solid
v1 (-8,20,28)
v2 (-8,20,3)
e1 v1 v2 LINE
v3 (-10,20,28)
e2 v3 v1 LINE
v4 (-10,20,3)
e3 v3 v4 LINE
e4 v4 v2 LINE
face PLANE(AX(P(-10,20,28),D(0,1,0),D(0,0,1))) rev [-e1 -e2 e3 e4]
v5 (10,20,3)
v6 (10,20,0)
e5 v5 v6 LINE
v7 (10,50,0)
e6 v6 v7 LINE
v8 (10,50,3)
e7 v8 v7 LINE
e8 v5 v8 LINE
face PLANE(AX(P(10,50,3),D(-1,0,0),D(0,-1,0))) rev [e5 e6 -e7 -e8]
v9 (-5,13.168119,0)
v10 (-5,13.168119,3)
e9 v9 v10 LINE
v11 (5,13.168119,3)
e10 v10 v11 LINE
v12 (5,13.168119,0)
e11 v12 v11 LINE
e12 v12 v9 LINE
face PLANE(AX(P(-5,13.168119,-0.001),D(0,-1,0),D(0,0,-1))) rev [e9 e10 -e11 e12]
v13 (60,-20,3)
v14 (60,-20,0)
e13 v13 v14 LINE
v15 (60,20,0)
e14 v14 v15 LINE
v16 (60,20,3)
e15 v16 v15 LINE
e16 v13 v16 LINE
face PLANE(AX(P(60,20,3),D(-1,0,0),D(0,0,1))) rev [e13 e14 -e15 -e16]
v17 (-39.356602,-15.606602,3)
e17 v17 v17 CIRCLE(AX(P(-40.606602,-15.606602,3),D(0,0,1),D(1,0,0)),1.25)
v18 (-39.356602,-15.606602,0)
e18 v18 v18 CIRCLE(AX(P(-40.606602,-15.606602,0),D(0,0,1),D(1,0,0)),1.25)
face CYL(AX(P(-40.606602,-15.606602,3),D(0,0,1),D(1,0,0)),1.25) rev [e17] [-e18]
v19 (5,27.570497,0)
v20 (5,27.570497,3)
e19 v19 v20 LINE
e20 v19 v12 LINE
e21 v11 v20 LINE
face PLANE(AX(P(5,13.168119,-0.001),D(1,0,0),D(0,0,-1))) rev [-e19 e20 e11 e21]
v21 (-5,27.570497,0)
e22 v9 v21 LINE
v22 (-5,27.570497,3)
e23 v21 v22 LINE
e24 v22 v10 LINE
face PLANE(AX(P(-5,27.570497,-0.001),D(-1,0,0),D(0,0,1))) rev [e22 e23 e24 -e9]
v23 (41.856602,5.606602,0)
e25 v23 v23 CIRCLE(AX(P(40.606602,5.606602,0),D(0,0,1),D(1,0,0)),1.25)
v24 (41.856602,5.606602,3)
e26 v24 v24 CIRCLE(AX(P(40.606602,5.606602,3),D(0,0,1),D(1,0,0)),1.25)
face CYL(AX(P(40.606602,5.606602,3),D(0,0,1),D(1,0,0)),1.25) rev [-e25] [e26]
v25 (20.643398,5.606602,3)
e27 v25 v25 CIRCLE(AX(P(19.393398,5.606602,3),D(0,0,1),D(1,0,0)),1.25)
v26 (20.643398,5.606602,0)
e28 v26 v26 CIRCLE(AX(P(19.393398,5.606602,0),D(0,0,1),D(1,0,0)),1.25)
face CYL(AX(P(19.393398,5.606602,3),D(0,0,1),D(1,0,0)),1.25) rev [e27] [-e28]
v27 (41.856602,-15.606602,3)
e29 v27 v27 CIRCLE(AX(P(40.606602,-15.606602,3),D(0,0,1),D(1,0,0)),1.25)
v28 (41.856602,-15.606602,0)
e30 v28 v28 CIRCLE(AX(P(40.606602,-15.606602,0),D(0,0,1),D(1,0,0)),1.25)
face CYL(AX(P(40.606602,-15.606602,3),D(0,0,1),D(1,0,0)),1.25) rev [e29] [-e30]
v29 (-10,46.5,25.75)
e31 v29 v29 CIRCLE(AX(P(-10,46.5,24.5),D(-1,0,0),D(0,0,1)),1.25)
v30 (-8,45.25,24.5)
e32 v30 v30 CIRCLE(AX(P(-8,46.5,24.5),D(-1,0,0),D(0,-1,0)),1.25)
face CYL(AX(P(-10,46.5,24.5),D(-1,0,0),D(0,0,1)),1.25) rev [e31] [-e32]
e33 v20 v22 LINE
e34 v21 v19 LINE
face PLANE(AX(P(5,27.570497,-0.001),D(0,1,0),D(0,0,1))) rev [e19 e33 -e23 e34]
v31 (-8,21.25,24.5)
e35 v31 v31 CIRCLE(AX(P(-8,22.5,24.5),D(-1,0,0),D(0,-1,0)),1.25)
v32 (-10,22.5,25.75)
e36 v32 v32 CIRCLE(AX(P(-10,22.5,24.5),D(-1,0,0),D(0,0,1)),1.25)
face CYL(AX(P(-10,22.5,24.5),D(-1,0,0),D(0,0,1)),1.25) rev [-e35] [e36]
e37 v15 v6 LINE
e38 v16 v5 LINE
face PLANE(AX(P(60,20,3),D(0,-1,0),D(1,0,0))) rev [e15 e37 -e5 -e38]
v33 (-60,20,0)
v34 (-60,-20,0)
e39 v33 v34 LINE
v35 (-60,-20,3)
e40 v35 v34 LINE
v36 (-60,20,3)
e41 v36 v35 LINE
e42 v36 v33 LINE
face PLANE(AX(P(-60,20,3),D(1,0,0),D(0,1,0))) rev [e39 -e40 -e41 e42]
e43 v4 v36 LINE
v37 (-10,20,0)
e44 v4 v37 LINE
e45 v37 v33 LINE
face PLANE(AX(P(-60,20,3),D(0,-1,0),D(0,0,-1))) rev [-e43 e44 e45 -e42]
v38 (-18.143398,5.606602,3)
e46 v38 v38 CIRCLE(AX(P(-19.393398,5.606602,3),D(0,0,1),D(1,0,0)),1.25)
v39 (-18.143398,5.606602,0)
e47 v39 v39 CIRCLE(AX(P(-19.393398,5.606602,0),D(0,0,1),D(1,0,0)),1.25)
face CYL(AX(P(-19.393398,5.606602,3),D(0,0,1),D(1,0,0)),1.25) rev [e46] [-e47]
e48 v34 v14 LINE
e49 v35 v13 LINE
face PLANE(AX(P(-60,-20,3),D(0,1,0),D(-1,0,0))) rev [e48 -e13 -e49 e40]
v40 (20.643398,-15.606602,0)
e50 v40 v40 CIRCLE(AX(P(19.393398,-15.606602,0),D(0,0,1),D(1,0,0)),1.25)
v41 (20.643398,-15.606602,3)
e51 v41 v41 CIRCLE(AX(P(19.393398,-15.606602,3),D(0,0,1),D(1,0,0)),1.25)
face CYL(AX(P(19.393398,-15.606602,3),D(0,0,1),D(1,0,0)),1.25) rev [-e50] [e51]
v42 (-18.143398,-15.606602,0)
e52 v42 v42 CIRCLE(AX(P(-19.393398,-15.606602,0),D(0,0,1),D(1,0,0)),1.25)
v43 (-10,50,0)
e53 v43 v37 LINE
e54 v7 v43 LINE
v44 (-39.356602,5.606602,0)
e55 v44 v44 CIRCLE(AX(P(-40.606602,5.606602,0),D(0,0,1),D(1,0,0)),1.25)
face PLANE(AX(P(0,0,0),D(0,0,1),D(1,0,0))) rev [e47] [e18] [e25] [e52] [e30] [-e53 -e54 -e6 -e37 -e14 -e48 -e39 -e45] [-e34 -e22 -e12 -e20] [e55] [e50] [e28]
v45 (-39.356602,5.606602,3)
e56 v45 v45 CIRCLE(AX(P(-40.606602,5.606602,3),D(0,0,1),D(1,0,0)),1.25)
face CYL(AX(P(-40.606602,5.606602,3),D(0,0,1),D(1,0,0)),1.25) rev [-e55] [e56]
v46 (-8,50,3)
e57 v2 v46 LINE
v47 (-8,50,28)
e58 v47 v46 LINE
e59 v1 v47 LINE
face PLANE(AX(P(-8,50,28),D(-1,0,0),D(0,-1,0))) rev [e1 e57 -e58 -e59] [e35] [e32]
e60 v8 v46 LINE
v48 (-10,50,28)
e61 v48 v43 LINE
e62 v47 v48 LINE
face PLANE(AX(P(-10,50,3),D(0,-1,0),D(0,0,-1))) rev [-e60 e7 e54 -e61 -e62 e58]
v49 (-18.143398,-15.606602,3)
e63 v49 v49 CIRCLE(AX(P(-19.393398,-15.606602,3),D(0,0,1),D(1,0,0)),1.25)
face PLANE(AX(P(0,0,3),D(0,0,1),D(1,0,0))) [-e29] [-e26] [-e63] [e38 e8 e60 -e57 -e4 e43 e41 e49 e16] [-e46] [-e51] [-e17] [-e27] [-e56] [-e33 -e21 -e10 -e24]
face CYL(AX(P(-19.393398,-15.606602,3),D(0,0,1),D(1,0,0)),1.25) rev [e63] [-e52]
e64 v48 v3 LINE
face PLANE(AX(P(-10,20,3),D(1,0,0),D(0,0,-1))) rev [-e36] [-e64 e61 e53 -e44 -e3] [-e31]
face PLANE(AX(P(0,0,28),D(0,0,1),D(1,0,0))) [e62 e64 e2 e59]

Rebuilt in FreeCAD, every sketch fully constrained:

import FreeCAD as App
import Part
import Sketcher

V = App.Vector
Q = App.Units.Quantity

doc = App.newDocument("Part")
params = doc.addObject("Spreadsheet::Sheet", "Params")
for row, (alias, value) in enumerate([
    ("sketch1_width", "120 mm"),
    ("sketch1_width2", "50 mm"),
    ("sketch1_height", "40 mm"),
    ("sketch1_height2", "30 mm"),
    ("pad1_length", "3 mm"),
    ("sketch2_width", "2 mm"),
    ("sketch2_height", "30 mm"),
    ("pad2_length", "25 mm"),
    ("sketch3_width", "10 mm"),
    ("sketch4_diameter", "2.5 mm"),
    ("hole_diameter", "2.5 mm"),
    ("sketch5_diameter", "2.5 mm"),
    ("hole2_diameter", "2.5 mm"),
], start=1):
    params.set(f"A{row}", alias)
    params.set(f"B{row}", "=" + value)
    params.setAlias(f"B{row}", alias)

body = doc.addObject("PartDesign::Body", "Body")

sketch1 = doc.addObject("Sketcher::SketchObject", "Sketch")
body.addObject(sketch1)
sketch1.AttachmentSupport = (doc.XY_Plane, [""])
sketch1.MapMode = "FlatFace"
sketch1.addGeometry([
    Part.LineSegment(V(-60, 20, 0), V(-60, -20, 0)),
    Part.LineSegment(V(-60, -20, 0), V(60, -20, 0)),
    Part.LineSegment(V(60, -20, 0), V(60, 20, 0)),
    Part.LineSegment(V(60, 20, 0), V(10, 20, 0)),
    Part.LineSegment(V(10, 20, 0), V(10, 50, 0)),
    Part.LineSegment(V(10, 50, 0), V(-10, 50, 0)),
    Part.LineSegment(V(-10, 50, 0), V(-10, 20, 0)),
    Part.LineSegment(V(-10, 20, 0), V(-60, 20, 0)),
], False)
sketch1.addConstraint([
    Sketcher.Constraint("Coincident", 0, 2, 1, 1),
    Sketcher.Constraint("Coincident", 1, 2, 2, 1),
    Sketcher.Constraint("Coincident", 2, 2, 3, 1),
    Sketcher.Constraint("Coincident", 3, 2, 4, 1),
    Sketcher.Constraint("Coincident", 4, 2, 5, 1),
    Sketcher.Constraint("Coincident", 5, 2, 6, 1),
    Sketcher.Constraint("Coincident", 6, 2, 7, 1),
    Sketcher.Constraint("Coincident", 7, 2, 0, 1),
    Sketcher.Constraint("Vertical", 0),
    Sketcher.Constraint("Horizontal", 1),
    Sketcher.Constraint("Vertical", 2),
    Sketcher.Constraint("Horizontal", 3),
    Sketcher.Constraint("Vertical", 4),
    Sketcher.Constraint("Horizontal", 5),
    Sketcher.Constraint("Vertical", 6),
    Sketcher.Constraint("Horizontal", 7),
    Sketcher.Constraint("Symmetric", 0, 2, 2, 2, -1, 1),
    Sketcher.Constraint("Symmetric", 3, 2, 6, 2, -2),
    Sketcher.Constraint("DistanceX", 1, 1, 1, 2, Q("120 mm")),
    Sketcher.Constraint("DistanceX", 3, 2, 3, 1, Q("50 mm")),
    Sketcher.Constraint("DistanceY", 0, 2, 0, 1, Q("40 mm")),
    Sketcher.Constraint("DistanceY", 4, 1, 4, 2, Q("30 mm")),
])
sketch1.setExpression("Constraints[18]", "Params.sketch1_width")
sketch1.setExpression("Constraints[19]", "Params.sketch1_width2")
sketch1.setExpression("Constraints[20]", "Params.sketch1_height")
sketch1.setExpression("Constraints[21]", "Params.sketch1_height2")
pad1 = doc.addObject("PartDesign::Pad", "Pad")
body.addObject(pad1)
pad1.Profile = sketch1
pad1.setExpression("Length", "Params.pad1_length")

sketch2 = doc.addObject("Sketcher::SketchObject", "Sketch001")
body.addObject(sketch2)
sketch2.AttachmentSupport = (doc.XY_Plane, [""])
sketch2.MapMode = "FlatFace"
sketch2.AttachmentOffset = App.Placement(V(0, 0, 3), App.Rotation())
sketch2.addGeometry([
    Part.LineSegment(V(-10, 50, 0), V(-10, 20, 0)),
    Part.LineSegment(V(-10, 20, 0), V(-8, 20, 0)),
    Part.LineSegment(V(-8, 20, 0), V(-8, 50, 0)),
    Part.LineSegment(V(-8, 50, 0), V(-10, 50, 0)),
], False)
sketch2.addConstraint([
    Sketcher.Constraint("Coincident", 0, 2, 1, 1),
    Sketcher.Constraint("Coincident", 1, 2, 2, 1),
    Sketcher.Constraint("Coincident", 2, 2, 3, 1),
    Sketcher.Constraint("Coincident", 3, 2, 0, 1),
    Sketcher.Constraint("Vertical", 0),
    Sketcher.Constraint("Horizontal", 1),
    Sketcher.Constraint("Vertical", 2),
    Sketcher.Constraint("Horizontal", 3),
    Sketcher.Constraint("DistanceX", 1, 1, 1, 2, Q("2 mm")),
    Sketcher.Constraint("DistanceY", 0, 2, 0, 1, Q("30 mm")),
    Sketcher.Constraint("DistanceX", 0, 2, -1, 1, Q("10 mm")),
    Sketcher.Constraint("DistanceY", -1, 1, 0, 2, Q("20 mm")),
])
sketch2.setExpression("Constraints[8]", "Params.sketch2_width")
sketch2.setExpression("Constraints[9]", "Params.sketch2_height")
pad2 = doc.addObject("PartDesign::Pad", "Pad001")
body.addObject(pad2)
pad2.Profile = sketch2
pad2.setExpression("Length", "Params.pad2_length")

sketch3 = doc.addObject("Sketcher::SketchObject", "Sketch002")
body.addObject(sketch3)
sketch3.AttachmentSupport = (doc.XY_Plane, [""])
sketch3.MapMode = "FlatFace"
sketch3.AttachmentOffset = App.Placement(V(0, 0, 3), App.Rotation())
sketch3.addGeometry([
    Part.LineSegment(V(-5, 28, 0), V(-5, 13, 0)),
    Part.LineSegment(V(-5, 13, 0), V(5, 13, 0)),
    Part.LineSegment(V(5, 13, 0), V(5, 28, 0)),
    Part.LineSegment(V(5, 28, 0), V(-5, 28, 0)),
], False)
sketch3.addConstraint([
    Sketcher.Constraint("Coincident", 0, 2, 1, 1),
    Sketcher.Constraint("Coincident", 1, 2, 2, 1),
    Sketcher.Constraint("Coincident", 2, 2, 3, 1),
    Sketcher.Constraint("Coincident", 3, 2, 0, 1),
    Sketcher.Constraint("Vertical", 0),
    Sketcher.Constraint("Horizontal", 1),
    Sketcher.Constraint("Vertical", 2),
    Sketcher.Constraint("Horizontal", 3),
    Sketcher.Constraint("DistanceX", 1, 1, 1, 2, Q("10 mm")),
    Sketcher.Constraint("DistanceX", 0, 2, -1, 1, Q("5 mm")),
    Sketcher.Constraint("DistanceY", 0, 2, 0, 1, Q("14.402378 mm")),
    Sketcher.Constraint("DistanceY", -1, 1, 0, 2, Q("13.168119 mm")),
])
sketch3.setExpression("Constraints[8]", "Params.sketch3_width")
pocket1 = doc.addObject("PartDesign::Pocket", "Pocket")
body.addObject(pocket1)
pocket1.Profile = sketch3
pocket1.Type = "UpToFirst"

sketch4 = doc.addObject("Sketcher::SketchObject", "Sketch003")
body.addObject(sketch4)
sketch4.AttachmentSupport = (doc.YZ_Plane, [""])
sketch4.MapMode = "FlatFace"
sketch4.AttachmentOffset = App.Placement(V(0, 0, -10), App.Rotation())
sketch4.addGeometry([
    Part.Circle(V(46.5, 24.5, 0), V(0, 0, 1), 1.2),
    Part.Circle(V(22.5, 24.5, 0), V(0, 0, 1), 1.2),
], False)
sketch4.addConstraint([
    Sketcher.Constraint("Equal", 0, 1),
    Sketcher.Constraint("Horizontal", 0, 3, 1, 3),
    Sketcher.Constraint("Diameter", 0, Q("2.5 mm")),
    Sketcher.Constraint("DistanceX", 1, 3, 0, 3, Q("24 mm")),
    Sketcher.Constraint("DistanceX", -1, 1, 0, 3, Q("46.5 mm")),
    Sketcher.Constraint("DistanceY", -1, 1, 0, 3, Q("24.5 mm")),
])
sketch4.setExpression("Constraints[2]", "Params.sketch4_diameter")
doc.recompute()
hole = doc.addObject("PartDesign::Hole", "Hole")
body.addObject(hole)
hole.Profile = sketch4
hole.ThreadType = "None"
hole.setExpression("Diameter", "Params.hole_diameter")
hole.DepthType = "ThroughAll"
hole.Reversed = True

sketch5 = doc.addObject("Sketcher::SketchObject", "Sketch004")
body.addObject(sketch5)
sketch5.AttachmentSupport = (doc.XY_Plane, [""])
sketch5.MapMode = "FlatFace"
sketch5.AttachmentOffset = App.Placement(V(0, 0, 3), App.Rotation())
sketch5.addGeometry([
    Part.Circle(V(-40.6, 5.6, 0), V(0, 0, 1), 1.2),
    Part.Circle(V(-19.4, 5.6, 0), V(0, 0, 1), 1.2),
    Part.Circle(V(-19.4, -15.6, 0), V(0, 0, 1), 1.2),
    Part.Circle(V(-40.6, -15.6, 0), V(0, 0, 1), 1.2),
    Part.Circle(V(19.4, 5.6, 0), V(0, 0, 1), 1.2),
    Part.Circle(V(40.6, 5.6, 0), V(0, 0, 1), 1.2),
    Part.Circle(V(19.4, -15.6, 0), V(0, 0, 1), 1.2),
    Part.Circle(V(40.6, -15.6, 0), V(0, 0, 1), 1.2),
], False)
sketch5.addConstraint([
    Sketcher.Constraint("Equal", 0, 1),
    Sketcher.Constraint("Equal", 1, 2),
    Sketcher.Constraint("Equal", 2, 3),
    Sketcher.Constraint("Equal", 3, 4),
    Sketcher.Constraint("Equal", 4, 5),
    Sketcher.Constraint("Equal", 5, 6),
    Sketcher.Constraint("Equal", 6, 7),
    Sketcher.Constraint("Symmetric", 1, 3, 4, 3, -2),
    Sketcher.Constraint("Symmetric", 0, 3, 5, 3, -2),
    Sketcher.Constraint("Symmetric", 2, 3, 6, 3, -2),
    Sketcher.Constraint("Symmetric", 3, 3, 7, 3, -2),
    Sketcher.Constraint("Horizontal", 0, 3, 1, 3),
    Sketcher.Constraint("Horizontal", 2, 3, 3, 3),
    Sketcher.Constraint("Vertical", 1, 3, 2, 3),
    Sketcher.Constraint("Vertical", 0, 3, 3, 3),
    Sketcher.Constraint("Diameter", 0, Q("2.5 mm")),
    Sketcher.Constraint("DistanceX", 0, 3, 4, 3, Q("60 mm")),
    Sketcher.Constraint("DistanceX", 0, 3, -1, 1, Q("40.606602 mm")),
    Sketcher.Constraint("DistanceY", -1, 1, 0, 3, Q("5.606602 mm")),
    Sketcher.Constraint("DistanceY", 2, 3, -1, 1, Q("15.606602 mm")),
])
sketch5.setExpression("Constraints[15]", "Params.sketch5_diameter")
doc.recompute()
hole2 = doc.addObject("PartDesign::Hole", "Hole001")
body.addObject(hole2)
hole2.Profile = sketch5
hole2.ThreadType = "None"
hole2.setExpression("Diameter", "Params.hole2_diameter")
hole2.DepthType = "ThroughAll"

doc.recompute()
